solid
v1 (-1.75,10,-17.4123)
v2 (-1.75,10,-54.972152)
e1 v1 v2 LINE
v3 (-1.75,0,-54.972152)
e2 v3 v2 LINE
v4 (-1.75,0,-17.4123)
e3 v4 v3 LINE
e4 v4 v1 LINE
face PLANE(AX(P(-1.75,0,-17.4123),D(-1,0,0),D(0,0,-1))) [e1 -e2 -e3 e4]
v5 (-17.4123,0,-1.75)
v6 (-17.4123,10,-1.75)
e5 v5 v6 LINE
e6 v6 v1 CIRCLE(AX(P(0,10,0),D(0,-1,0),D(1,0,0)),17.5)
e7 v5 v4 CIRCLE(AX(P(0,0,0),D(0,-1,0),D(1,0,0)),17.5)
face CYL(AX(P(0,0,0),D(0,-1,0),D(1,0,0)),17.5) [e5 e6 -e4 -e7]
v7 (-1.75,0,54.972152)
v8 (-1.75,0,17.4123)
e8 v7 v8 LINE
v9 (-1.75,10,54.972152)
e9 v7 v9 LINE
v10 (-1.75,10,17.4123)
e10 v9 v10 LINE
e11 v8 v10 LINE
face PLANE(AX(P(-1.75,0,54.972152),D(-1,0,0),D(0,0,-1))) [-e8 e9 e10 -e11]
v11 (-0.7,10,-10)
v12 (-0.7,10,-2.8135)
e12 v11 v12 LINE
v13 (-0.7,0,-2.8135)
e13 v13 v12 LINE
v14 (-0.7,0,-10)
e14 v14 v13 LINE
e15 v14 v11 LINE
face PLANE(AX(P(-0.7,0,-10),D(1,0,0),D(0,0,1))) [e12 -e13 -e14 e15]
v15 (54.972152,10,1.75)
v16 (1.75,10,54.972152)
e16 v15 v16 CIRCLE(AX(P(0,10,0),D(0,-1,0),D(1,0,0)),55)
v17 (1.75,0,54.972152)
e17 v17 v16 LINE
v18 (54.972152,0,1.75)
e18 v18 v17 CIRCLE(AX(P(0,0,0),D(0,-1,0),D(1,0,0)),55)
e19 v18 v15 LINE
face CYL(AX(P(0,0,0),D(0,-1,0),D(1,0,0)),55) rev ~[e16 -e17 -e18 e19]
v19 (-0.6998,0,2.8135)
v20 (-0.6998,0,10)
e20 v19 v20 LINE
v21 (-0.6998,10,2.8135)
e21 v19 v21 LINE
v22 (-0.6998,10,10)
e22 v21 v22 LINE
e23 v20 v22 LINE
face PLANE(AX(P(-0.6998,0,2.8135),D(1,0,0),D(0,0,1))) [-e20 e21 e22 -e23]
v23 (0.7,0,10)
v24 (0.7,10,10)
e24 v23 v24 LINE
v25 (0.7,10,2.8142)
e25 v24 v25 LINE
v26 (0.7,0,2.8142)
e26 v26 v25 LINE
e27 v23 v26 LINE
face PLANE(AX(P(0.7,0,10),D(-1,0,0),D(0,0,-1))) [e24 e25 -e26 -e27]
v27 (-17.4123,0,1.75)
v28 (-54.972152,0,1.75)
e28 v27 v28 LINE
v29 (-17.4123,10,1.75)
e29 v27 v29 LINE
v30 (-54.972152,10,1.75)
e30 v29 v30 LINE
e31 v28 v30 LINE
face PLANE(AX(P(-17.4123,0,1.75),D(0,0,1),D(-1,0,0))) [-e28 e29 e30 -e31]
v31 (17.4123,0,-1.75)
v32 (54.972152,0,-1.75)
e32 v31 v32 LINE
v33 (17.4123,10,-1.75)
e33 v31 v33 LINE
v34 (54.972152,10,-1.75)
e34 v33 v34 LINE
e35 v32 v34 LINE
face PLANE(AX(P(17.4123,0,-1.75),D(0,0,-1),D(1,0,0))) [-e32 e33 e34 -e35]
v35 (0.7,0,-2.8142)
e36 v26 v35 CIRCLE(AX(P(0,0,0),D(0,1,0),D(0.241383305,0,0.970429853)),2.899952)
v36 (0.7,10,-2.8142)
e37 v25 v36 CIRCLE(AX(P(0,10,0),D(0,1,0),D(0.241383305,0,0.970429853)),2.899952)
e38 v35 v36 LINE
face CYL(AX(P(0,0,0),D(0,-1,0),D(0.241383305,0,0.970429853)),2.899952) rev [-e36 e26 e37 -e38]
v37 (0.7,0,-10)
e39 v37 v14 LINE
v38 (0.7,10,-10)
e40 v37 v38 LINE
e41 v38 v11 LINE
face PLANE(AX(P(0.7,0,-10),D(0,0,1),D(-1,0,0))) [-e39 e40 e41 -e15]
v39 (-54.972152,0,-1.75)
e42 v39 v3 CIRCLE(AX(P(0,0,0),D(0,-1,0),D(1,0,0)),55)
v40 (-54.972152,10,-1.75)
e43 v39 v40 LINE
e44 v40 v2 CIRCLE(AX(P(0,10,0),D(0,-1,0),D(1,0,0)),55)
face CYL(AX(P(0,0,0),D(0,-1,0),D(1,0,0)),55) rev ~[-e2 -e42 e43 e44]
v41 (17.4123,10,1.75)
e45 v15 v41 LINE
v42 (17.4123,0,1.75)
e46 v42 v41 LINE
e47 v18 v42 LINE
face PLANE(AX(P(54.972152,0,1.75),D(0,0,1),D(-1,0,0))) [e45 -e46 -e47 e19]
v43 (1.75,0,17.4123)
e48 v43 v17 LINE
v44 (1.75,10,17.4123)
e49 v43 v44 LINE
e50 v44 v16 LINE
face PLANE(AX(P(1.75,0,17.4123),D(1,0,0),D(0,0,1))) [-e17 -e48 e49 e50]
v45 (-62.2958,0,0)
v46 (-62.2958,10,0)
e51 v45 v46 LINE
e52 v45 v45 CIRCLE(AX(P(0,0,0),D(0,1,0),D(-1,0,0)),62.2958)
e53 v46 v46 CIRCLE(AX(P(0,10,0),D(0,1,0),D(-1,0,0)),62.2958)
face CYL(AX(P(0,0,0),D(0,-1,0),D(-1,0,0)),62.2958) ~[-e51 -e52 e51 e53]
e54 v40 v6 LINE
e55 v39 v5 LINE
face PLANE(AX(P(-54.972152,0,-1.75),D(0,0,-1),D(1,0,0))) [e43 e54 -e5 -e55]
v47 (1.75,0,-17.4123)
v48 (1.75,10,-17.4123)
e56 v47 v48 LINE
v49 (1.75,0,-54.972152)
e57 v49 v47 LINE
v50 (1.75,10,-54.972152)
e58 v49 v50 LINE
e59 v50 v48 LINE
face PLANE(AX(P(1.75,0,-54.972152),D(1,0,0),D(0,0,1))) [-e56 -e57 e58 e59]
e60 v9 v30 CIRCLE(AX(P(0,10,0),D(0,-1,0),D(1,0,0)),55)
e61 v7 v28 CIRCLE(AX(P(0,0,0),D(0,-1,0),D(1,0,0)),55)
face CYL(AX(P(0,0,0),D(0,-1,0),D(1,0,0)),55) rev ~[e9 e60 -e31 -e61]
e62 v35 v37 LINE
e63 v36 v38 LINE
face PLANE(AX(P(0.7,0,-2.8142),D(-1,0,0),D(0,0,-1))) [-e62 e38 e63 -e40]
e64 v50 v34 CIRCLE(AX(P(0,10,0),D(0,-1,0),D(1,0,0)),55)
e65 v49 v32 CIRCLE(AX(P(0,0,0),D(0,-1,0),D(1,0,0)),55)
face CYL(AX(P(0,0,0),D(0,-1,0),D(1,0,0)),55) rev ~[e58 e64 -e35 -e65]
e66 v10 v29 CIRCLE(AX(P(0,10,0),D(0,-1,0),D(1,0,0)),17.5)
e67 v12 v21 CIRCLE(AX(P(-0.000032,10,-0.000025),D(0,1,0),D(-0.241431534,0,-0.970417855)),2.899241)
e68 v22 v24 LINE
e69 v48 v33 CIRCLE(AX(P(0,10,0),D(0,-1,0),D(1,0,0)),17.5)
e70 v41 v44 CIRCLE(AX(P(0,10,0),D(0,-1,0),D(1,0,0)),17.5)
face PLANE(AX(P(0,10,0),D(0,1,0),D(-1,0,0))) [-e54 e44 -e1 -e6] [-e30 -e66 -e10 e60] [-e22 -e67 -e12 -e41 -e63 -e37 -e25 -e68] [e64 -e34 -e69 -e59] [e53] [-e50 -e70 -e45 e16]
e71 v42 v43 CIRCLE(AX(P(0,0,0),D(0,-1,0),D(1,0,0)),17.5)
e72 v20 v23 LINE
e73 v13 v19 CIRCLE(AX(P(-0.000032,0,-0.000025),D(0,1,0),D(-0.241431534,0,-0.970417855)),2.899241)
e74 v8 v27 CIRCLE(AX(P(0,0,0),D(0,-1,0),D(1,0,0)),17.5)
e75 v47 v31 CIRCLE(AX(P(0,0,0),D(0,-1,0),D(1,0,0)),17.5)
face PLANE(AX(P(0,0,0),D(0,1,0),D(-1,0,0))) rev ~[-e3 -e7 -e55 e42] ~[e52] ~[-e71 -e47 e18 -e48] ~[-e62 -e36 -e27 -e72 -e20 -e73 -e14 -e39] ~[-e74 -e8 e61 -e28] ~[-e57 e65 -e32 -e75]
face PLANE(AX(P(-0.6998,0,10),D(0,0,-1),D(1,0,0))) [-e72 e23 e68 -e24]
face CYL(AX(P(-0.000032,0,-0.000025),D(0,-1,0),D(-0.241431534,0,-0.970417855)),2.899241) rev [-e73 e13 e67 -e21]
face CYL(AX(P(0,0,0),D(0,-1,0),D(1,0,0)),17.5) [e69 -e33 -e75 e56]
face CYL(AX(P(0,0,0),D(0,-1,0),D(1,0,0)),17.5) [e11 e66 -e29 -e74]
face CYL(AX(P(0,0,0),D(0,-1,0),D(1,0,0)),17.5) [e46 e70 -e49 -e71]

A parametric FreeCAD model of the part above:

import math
import FreeCAD as App
import Part
import Sketcher

V = App.Vector

doc = App.newDocument("Part")
params = doc.addObject("Spreadsheet::Sheet", "Params")
for row, (alias, value) in enumerate([
    ("sketch1_width", "1.4 mm"),
    ("sketch1_radius", "2.9 mm"),
    ("pad1_length", "10 mm"),
    ("sketch2_radius", "55 mm"),
    ("sketch2_radius2", "17.5 mm"),
    ("pocket1_length", "10 mm"),
], start=1):
    params.set(f"A{row}", alias)
    params.set(f"B{row}", "=" + value)
    params.setAlias(f"B{row}", alias)

body = doc.addObject("PartDesign::Body", "Body")

# Sketch on XZ plane
sketch1 = body.newObject("Sketcher::SketchObject", "Sketch")
sketch1.AttachmentSupport = (doc.getObject("XZ_Plane"), [""])
sketch1.MapMode = "FlatFace"
sketch1.addGeometry([
    Part.Circle(V(0, 0, 0), V(0, 0, 1), 62.3),  # 0
    Part.LineSegment(V(-0.7, -10, 0), V(0.7, -10, 0)),  # 1
    Part.LineSegment(V(0.7, -10, 0), V(0.7, -2.8, 0)),  # 2
    Part.ArcOfCircle(Part.Circle(V(0, 0, 0), V(0, 0, 1), 2.9), math.radians(-76), math.radians(76)),  # 3
    Part.LineSegment(V(0.7, 2.8, 0), V(0.7, 10, 0)),  # 4
    Part.LineSegment(V(0.7, 10, 0), V(-0.7, 10, 0)),  # 5
    Part.LineSegment(V(-0.7, 10, 0), V(-0.7, 2.8, 0)),  # 6
    Part.ArcOfCircle(Part.Circle(V(0, 0, 0), V(0, 0, 1), 2.9), math.radians(104), math.radians(256)),  # 7
    Part.LineSegment(V(-0.7, -2.8, 0), V(-0.7, -10, 0)),  # 8
], False)
sketch1.addConstraint([
    Sketcher.Constraint("Coincident", 1, 2, 2, 1),
    Sketcher.Constraint("Coincident", 2, 2, 3, 1),
    Sketcher.Constraint("Coincident", 3, 2, 4, 1),
    Sketcher.Constraint("Coincident", 4, 2, 5, 1),
    Sketcher.Constraint("Coincident", 5, 2, 6, 1),
    Sketcher.Constraint("Coincident", 6, 2, 7, 1),
    Sketcher.Constraint("Coincident", 7, 2, 8, 1),
    Sketcher.Constraint("Coincident", 8, 2, 1, 1),
    Sketcher.Constraint("Horizontal", 1),
    Sketcher.Constraint("Vertical", 2),
    Sketcher.Constraint("Vertical", 4),
    Sketcher.Constraint("Horizontal", 5),
    Sketcher.Constraint("Vertical", 6),
    Sketcher.Constraint("Vertical", 8),
    Sketcher.Constraint("Coincident", 0, 3, -1, 1),
    Sketcher.Constraint("Coincident", 3, 3, -1, 1),
    Sketcher.Constraint("Coincident", 7, 3, -1, 1),
    Sketcher.Constraint("Symmetric", 1, 2, 5, 2, -1, 1),
    Sketcher.Constraint("Vertical", 2, 2, 3, 2),
    Sketcher.Constraint("Equal", 1, 5),
    Sketcher.Constraint("DistanceX", 1, 1, 1, 2, 1.4),
    Sketcher.Constraint("DistanceY", 1, 2, -1, 1, 10.0),
    Sketcher.Constraint("Diameter", 0, 124.5916),
    Sketcher.Constraint("Radius", 3, 2.9),
    Sketcher.Constraint("Radius", 7, 2.8993),
])
sketch1.setExpression("Constraints[20]", "Params.sketch1_width")
sketch1.setExpression("Constraints[23]", "Params.sketch1_radius")
pad1 = body.newObject("PartDesign::Pad", "Pad")
pad1.Profile = sketch1
pad1.setExpression("Length", "Params.pad1_length")
pad1.Reversed = True

# Sketch on XZ plane
sketch2 = body.newObject("Sketcher::SketchObject", "Sketch001")
sketch2.AttachmentSupport = (doc.getObject("XZ_Plane"), [""])
sketch2.MapMode = "FlatFace"
sketch2.addGeometry([
    Part.ArcOfCircle(Part.Circle(V(0, 0, 0), V(0, 0, 1), 18), math.radians(6), math.radians(84)),  # 0
    Part.LineSegment(V(17, 2, 0), V(55, 2, 0)),  # 1
    Part.ArcOfCircle(Part.Circle(V(0, 0, 0), V(0, 0, 1), 55), math.radians(2), math.radians(88)),  # 2
    Part.LineSegment(V(2, 55, 0), V(2, 17, 0)),  # 3
    Part.LineSegment(V(55, -2, 0), V(17, -2, 0)),  # 4
    Part.ArcOfCircle(Part.Circle(V(0, 0, 0), V(0, 0, 1), 18), math.radians(-84), math.radians(-6)),  # 5
    Part.LineSegment(V(2, -17, 0), V(2, -55, 0)),  # 6
    Part.ArcOfCircle(Part.Circle(V(0, 0, 0), V(0, 0, 1), 55), math.radians(-88), math.radians(-2)),  # 7
    Part.ArcOfCircle(Part.Circle(V(0, 0, 0), V(0, 0, 1), 18), math.radians(96), math.radians(174)),  # 8
    Part.LineSegment(V(-2, 17, 0), V(-2, 55, 0)),  # 9
    Part.ArcOfCircle(Part.Circle(V(0, 0, 0), V(0, 0, 1), 55), math.radians(92), math.radians(178)),  # 10
    Part.LineSegment(V(-55, 2, 0), V(-17, 2, 0)),  # 11
    Part.LineSegment(V(-2, -55, 0), V(-2, -17, 0)),  # 12
    Part.ArcOfCircle(Part.Circle(V(0, 0, 0), V(0, 0, 1), 18), math.radians(-174), math.radians(-96)),  # 13
    Part.LineSegment(V(-17, -2, 0), V(-55, -2, 0)),  # 14
    Part.ArcOfCircle(Part.Circle(V(0, 0, 0), V(0, 0, 1), 55), math.radians(-178), math.radians(-92)),  # 15
], False)
sketch2.addConstraint([
    Sketcher.Constraint("Coincident", 0, 1, 1, 1),
    Sketcher.Constraint("Coincident", 1, 2, 2, 1),
    Sketcher.Constraint("Coincident", 2, 2, 3, 1),
    Sketcher.Constraint("Coincident", 3, 2, 0, 2),
    Sketcher.Constraint("Coincident", 4, 2, 5, 2),
    Sketcher.Constraint("Coincident", 5, 1, 6, 1),
    Sketcher.Constraint("Coincident", 6, 2, 7, 1),
    Sketcher.Constraint("Coincident", 7, 2, 4, 1),
    Sketcher.Constraint("Coincident", 8, 1, 9, 1),
    Sketcher.Constraint("Coincident", 9, 2, 10, 1),
    Sketcher.Constraint("Coincident", 10, 2, 11, 1),
    Sketcher.Constraint("Coincident", 11, 2, 8, 2),
    Sketcher.Constraint("Coincident", 12, 2, 13, 2),
    Sketcher.Constraint("Coincident", 13, 1, 14, 1),
    Sketcher.Constraint("Coincident", 14, 2, 15, 1),
    Sketcher.Constraint("Coincident", 15, 2, 12, 1),
    Sketcher.Constraint("Horizontal", 1),
    Sketcher.Constraint("Vertical", 3),
    Sketcher.Constraint("Horizontal", 4),
    Sketcher.Constraint("Vertical", 6),
    Sketcher.Constraint("Vertical", 9),
    Sketcher.Constraint("Horizontal", 11),
    Sketcher.Constraint("Vertical", 12),
    Sketcher.Constraint("Horizontal", 14),
    Sketcher.Constraint("Coincident", 0, 3, -1, 1),
    Sketcher.Constraint("Coincident", 2, 3, -1, 1),
    Sketcher.Constraint("Coincident", 5, 3, -1, 1),
    Sketcher.Constraint("Coincident", 7, 3, -1, 1),
    Sketcher.Constraint("Coincident", 8, 3, -1, 1),
    Sketcher.Constraint("Coincident", 10, 3, -1, 1),
    Sketcher.Constraint("Coincident", 13, 3, -1, 1),
    Sketcher.Constraint("Coincident", 15, 3, -1, 1),
    Sketcher.Constraint("Equal", 0, 5),
    Sketcher.Constraint("Equal", 2, 7),
    Sketcher.Constraint("Equal", 5, 8),
    Sketcher.Constraint("Equal", 7, 10),
    Sketcher.Constraint("Equal", 8, 13),
    Sketcher.Constraint("Equal", 10, 15),
    Sketcher.Constraint("Horizontal", 3, 2, 8, 1),
    Sketcher.Constraint("Horizontal", 1, 2, 10, 2),
    Sketcher.Constraint("Horizontal", 5, 1, 12, 2),
    Sketcher.Constraint("Horizontal", 7, 2, 13, 1),
    Sketcher.Constraint("Vertical", 0, 1, 4, 2),
    Sketcher.Constraint("Vertical", 3, 2, 5, 1),
    Sketcher.Constraint("Equal", 14, 3),
    Sketcher.Constraint("Radius", 2, 55.0),
    Sketcher.Constraint("Radius", 0, 17.5),
    Sketcher.Constraint("DistanceY", 4, 2, 0, 1, 3.5),
])
sketch2.setExpression("Constraints[45]", "Params.sketch2_radius")
sketch2.setExpression("Constraints[46]", "Params.sketch2_radius2")
pocket1 = body.newObject("PartDesign::Pocket", "Pocket")
pocket1.Profile = sketch2
pocket1.setExpression("Length", "Params.pocket1_length")

doc.recompute()
